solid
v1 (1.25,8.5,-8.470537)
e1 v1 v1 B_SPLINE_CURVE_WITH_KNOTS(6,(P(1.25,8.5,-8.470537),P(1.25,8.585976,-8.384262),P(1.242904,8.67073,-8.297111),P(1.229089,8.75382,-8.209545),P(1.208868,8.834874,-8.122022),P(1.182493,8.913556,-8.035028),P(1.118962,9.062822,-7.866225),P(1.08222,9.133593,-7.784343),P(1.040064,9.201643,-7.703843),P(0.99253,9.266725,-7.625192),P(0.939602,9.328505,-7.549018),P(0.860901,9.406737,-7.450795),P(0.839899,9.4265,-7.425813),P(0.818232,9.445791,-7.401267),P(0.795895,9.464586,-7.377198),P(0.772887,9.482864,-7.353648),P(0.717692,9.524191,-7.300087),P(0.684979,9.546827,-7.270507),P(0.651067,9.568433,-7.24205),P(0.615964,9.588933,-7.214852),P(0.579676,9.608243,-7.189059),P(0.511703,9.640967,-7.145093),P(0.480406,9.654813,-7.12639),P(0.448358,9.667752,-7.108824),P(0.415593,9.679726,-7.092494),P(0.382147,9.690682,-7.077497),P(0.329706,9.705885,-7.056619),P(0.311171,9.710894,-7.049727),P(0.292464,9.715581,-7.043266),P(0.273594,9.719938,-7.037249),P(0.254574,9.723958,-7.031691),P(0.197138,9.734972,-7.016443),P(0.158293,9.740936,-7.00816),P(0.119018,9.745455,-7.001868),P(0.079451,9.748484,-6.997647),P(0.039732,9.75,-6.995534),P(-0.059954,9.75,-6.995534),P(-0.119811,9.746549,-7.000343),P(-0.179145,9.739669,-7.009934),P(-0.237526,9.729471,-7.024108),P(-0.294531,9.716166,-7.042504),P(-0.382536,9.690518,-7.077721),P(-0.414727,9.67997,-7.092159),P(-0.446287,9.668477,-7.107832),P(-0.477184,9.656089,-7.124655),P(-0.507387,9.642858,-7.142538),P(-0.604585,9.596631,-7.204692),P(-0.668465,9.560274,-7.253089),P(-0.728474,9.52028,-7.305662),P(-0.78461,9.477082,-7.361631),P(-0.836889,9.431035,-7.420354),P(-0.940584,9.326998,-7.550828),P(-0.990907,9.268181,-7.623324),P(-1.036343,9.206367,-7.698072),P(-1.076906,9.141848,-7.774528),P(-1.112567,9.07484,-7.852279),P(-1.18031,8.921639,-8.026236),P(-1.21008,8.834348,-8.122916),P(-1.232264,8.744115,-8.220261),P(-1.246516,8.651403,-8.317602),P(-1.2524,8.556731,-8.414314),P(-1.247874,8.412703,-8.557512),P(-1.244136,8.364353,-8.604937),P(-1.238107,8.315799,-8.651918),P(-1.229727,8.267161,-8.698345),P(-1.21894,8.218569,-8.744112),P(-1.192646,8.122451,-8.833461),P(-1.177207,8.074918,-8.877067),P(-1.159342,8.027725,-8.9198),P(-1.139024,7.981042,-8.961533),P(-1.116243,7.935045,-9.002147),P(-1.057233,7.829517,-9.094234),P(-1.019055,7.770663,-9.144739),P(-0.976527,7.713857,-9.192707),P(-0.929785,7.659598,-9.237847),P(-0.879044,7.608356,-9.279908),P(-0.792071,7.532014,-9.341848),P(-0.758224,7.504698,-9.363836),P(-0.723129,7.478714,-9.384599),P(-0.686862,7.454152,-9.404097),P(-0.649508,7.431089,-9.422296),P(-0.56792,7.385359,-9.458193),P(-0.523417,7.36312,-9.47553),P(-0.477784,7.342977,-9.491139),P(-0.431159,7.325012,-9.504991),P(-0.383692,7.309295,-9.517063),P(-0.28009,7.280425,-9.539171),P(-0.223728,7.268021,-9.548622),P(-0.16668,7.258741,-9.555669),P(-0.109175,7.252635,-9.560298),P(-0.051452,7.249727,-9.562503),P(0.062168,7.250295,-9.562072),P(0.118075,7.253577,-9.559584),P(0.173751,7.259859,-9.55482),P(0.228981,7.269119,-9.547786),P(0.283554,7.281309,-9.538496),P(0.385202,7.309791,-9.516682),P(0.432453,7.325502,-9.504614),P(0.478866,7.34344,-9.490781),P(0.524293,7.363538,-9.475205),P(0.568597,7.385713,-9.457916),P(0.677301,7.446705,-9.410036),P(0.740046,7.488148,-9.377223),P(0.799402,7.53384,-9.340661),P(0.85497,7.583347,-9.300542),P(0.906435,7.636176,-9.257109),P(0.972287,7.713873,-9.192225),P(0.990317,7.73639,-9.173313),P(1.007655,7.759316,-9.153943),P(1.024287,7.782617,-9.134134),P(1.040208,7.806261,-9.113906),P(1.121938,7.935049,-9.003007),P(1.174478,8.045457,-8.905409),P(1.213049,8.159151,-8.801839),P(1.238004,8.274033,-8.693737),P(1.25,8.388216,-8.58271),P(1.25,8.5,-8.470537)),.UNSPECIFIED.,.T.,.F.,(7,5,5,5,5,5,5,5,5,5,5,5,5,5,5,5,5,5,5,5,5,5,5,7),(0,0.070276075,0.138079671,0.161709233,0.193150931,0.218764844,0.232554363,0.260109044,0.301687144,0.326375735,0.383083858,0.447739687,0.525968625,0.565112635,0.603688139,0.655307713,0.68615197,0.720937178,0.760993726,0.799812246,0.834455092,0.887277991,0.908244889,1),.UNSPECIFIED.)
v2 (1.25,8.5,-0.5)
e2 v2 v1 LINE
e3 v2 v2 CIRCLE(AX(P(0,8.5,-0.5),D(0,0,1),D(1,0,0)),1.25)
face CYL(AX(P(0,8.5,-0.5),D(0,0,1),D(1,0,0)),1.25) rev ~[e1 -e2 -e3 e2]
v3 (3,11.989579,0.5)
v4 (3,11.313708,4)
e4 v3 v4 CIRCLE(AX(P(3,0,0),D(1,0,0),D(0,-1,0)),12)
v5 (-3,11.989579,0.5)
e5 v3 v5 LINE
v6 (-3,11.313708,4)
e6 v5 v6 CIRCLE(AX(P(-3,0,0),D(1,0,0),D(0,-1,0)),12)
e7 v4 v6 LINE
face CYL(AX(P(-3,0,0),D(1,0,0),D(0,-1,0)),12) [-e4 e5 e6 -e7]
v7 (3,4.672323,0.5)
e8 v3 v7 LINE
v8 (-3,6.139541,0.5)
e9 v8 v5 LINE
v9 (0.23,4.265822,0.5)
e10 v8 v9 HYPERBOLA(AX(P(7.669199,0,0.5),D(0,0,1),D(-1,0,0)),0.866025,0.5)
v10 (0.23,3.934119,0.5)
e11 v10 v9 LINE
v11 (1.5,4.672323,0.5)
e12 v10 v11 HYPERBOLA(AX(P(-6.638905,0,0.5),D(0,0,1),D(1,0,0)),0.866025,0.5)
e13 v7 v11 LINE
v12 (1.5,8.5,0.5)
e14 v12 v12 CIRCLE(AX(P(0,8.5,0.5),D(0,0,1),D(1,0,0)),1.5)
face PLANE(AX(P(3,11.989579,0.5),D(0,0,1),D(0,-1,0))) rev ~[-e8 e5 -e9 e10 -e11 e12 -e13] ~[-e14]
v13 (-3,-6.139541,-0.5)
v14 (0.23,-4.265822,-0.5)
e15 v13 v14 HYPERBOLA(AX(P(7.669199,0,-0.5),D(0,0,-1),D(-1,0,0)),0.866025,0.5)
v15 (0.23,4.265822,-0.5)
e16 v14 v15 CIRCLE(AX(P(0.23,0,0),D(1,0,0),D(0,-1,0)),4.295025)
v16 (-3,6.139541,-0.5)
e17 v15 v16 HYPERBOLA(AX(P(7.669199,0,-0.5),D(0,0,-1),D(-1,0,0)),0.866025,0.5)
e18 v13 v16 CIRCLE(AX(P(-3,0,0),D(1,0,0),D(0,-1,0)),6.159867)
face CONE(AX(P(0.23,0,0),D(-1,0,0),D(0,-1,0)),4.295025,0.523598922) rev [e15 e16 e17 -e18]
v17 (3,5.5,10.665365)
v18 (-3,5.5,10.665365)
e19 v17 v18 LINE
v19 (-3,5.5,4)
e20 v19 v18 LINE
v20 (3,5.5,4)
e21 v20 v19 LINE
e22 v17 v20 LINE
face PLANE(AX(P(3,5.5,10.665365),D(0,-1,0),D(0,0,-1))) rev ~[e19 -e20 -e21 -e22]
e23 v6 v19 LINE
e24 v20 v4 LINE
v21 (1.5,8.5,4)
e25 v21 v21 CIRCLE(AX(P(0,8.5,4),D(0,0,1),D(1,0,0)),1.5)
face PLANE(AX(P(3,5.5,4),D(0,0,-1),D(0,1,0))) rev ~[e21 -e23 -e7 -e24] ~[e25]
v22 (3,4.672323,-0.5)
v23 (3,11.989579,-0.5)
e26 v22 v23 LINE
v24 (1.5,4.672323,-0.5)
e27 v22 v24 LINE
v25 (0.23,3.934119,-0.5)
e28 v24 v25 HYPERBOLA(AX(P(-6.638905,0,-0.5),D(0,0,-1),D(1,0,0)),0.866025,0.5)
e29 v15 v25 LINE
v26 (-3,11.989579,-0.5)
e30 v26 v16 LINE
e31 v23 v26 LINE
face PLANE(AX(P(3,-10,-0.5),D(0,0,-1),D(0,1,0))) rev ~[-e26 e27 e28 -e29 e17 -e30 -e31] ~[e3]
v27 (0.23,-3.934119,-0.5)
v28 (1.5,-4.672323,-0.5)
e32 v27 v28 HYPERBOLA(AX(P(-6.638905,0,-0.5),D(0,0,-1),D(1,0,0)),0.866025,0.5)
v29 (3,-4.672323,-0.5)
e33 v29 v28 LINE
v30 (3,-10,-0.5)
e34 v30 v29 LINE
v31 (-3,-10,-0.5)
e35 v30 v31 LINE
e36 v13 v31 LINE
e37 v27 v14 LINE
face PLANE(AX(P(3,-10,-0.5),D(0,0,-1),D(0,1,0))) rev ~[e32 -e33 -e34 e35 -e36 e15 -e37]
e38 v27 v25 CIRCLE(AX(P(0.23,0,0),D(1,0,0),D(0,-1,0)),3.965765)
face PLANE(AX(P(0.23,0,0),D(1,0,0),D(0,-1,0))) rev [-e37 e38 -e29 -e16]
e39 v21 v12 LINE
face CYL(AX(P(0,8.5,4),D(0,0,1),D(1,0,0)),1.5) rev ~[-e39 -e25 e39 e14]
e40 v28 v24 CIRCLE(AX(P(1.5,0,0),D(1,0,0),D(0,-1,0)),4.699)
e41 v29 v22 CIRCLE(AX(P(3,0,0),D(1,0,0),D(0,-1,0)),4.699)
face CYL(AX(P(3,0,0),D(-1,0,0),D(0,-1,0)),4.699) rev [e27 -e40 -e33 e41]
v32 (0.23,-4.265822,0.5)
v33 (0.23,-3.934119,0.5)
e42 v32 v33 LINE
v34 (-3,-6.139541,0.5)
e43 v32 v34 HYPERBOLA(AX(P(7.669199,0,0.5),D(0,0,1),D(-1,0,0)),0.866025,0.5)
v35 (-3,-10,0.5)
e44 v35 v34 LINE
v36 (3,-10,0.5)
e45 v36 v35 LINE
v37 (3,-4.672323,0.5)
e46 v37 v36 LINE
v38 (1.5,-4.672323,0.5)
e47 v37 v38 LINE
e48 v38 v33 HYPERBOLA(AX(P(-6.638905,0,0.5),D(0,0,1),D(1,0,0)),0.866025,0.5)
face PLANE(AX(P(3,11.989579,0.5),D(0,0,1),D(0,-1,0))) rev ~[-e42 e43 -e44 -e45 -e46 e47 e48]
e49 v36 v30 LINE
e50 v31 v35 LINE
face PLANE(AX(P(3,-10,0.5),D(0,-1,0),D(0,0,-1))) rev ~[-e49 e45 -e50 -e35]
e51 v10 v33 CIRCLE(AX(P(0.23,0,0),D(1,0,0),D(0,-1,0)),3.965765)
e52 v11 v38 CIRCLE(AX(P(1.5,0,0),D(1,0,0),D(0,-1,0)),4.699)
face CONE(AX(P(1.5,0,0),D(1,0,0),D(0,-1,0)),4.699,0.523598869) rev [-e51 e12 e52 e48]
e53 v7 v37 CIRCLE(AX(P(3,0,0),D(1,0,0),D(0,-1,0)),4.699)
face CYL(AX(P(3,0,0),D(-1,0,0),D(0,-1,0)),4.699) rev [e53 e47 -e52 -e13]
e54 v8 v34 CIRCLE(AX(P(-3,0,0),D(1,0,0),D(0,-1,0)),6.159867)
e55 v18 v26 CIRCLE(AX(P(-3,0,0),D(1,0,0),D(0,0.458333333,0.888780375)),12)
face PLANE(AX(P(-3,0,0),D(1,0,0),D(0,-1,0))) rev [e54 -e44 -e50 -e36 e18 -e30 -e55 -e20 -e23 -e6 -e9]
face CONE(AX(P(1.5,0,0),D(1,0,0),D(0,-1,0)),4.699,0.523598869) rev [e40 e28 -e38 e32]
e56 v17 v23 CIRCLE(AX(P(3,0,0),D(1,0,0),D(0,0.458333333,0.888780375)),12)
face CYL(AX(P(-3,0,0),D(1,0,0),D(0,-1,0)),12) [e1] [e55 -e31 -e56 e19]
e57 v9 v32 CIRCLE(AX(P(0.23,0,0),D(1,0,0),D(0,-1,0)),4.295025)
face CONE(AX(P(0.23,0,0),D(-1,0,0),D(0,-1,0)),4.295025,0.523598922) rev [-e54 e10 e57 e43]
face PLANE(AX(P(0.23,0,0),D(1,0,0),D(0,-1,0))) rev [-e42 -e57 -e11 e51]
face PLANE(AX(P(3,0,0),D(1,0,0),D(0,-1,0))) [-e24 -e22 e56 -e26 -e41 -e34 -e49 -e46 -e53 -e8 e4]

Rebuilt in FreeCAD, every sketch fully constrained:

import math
import FreeCAD as App
import Part
import Sketcher

V = App.Vector
Q = App.Units.Quantity


def add_polygon(sketch, points):
    """Adds a closed chain of lines whose ends are joined by coincident constraints."""
    first, n = sketch.GeometryCount, len(points)
    for a, b in zip(points, points[1:] + points[:1]):
        sketch.addGeometry(Part.LineSegment(App.Vector(*a, 0), App.Vector(*b, 0)), False)
    for i in range(n):
        sketch.addConstraint(Sketcher.Constraint("Coincident", first + i, 2, first + (i + 1) % n, 1))

doc = App.newDocument("Part")
body = doc.addObject("PartDesign::Body", "Body")

# Sketch on XY plane
sketch1 = body.newObject("Sketcher::SketchObject", "Sketch")
sketch1.AttachmentSupport = (doc.getObject("XY_Plane"), [""])
sketch1.MapMode = "FlatFace"
add_polygon(sketch1, [(3, -12), (3, -4.7), (1.5, -4.7), (0.23, -3.97), (0.23, -4.3), (-3, -6.16), (-3, -12)])  # lines 0-6
sketch1.addConstraint([
    Sketcher.Constraint("Vertical", 0),
    Sketcher.Constraint("Horizontal", 1),
    Sketcher.Constraint("Vertical", 3),
    Sketcher.Constraint("Vertical", 5),
    Sketcher.Constraint("Horizontal", 6),
    Sketcher.Constraint("DistanceX", 6, 1, 6, 2, 6.0),
    Sketcher.Constraint("Angle", 2, Q("149.999995 deg")),
    Sketcher.Constraint("Angle", 4, Q("-149.999992 deg")),
    Sketcher.Constraint("DistanceX", 1, 2, 1, 1, 1.5),
    Sketcher.Constraint("DistanceX", -1, 1, 0, 2, 3.0),
    Sketcher.Constraint("DistanceY", 5, 2, -1, 1, 12.0),
    Sketcher.Constraint("DistanceY", 0, 1, 0, 2, 7.301),
    Sketcher.Constraint("DistanceX", -1, 1, 2, 2, 0.23),
    Sketcher.Constraint("DistanceY", 3, 2, 3, 1, 0.32926),
])
revolution = body.newObject("PartDesign::Revolution", "Revolution")
revolution.Profile = sketch1
revolution.ReferenceAxis = (sketch1, ["H_Axis"])
revolution.Angle = 360

# Sketch on YZ plane
sketch2 = body.newObject("Sketcher::SketchObject", "Sketch001")
sketch2.AttachmentSupport = (doc.getObject("YZ_Plane"), [""])
sketch2.MapMode = "FlatFace"
sketch2.AttachmentOffset = App.Placement(V(0, 0, 3), App.Rotation())
sketch2.addGeometry([
    Part.ArcOfCircle(Part.Circle(V(0, 0, 0), V(0, 0, 1), 12), math.radians(19), math.radians(63)),  # 0
    Part.LineSegment(V(5.5, 10.7, 0), V(5.5, 4, 0)),  # 1
    Part.LineSegment(V(5.5, 4, 0), V(11.3, 4, 0)),  # 2
    Part.ArcOfCircle(Part.Circle(V(0, 0, 0), V(0, 0, 1), 12), math.radians(-2.39), math.radians(0)),  # 3
    Part.ArcOfCircle(Part.Circle(V(0, 0, 0), V(0, 0, 1), 12), math.radians(0), math.radians(2.39)),  # 4
    Part.LineSegment(V(12, 0.5, 0), V(-10, 0.5, 0)),  # 5
    Part.LineSegment(V(-10, 0.5, 0), V(-10, -0.5, 0)),  # 6
    Part.LineSegment(V(-10, -0.5, 0), V(12, -0.5, 0)),  # 7
], False)
sketch2.addConstraint([
    Sketcher.Constraint("Coincident", 0, 2, 1, 1),
    Sketcher.Constraint("Coincident", 1, 2, 2, 1),
    Sketcher.Constraint("Coincident", 2, 2, 0, 1),
    Sketcher.Constraint("Tangent", 3, 2, 4, 1),
    Sketcher.Constraint("Coincident", 4, 2, 5, 1),
    Sketcher.Constraint("Coincident", 5, 2, 6, 1),
    Sketcher.Constraint("Coincident", 6, 2, 7, 1),
    Sketcher.Constraint("Coincident", 7, 2, 3, 1),
    Sketcher.Constraint("Vertical", 1),
    Sketcher.Constraint("Horizontal", 2),
    Sketcher.Constraint("Horizontal", 5),
    Sketcher.Constraint("Vertical", 6),
    Sketcher.Constraint("Horizontal", 7),
    Sketcher.Constraint("Coincident", 0, 3, -1, 1),
    Sketcher.Constraint("Coincident", 3, 3, -1, 1),
    Sketcher.Constraint("Equal", 0, 3),
    Sketcher.Constraint("Equal", 3, 4),
    Sketcher.Constraint("PointOnObject", 3, 2, -1),
    Sketcher.Constraint("Vertical", 4, 2, 7, 2),
    Sketcher.Constraint("Radius", 0, 12.0),
    Sketcher.Constraint("DistanceY", 6, 2, 6, 1, 1.0),
    Sketcher.Constraint("DistanceY", -1, 1, 1, 2, 4.0),
    Sketcher.Constraint("DistanceX", 5, 2, -1, 1, 10.0),
    Sketcher.Constraint("DistanceX", -1, 1, 0, 2, 5.5),
])
pocket1 = body.newObject("PartDesign::Pocket", "Pocket")
pocket1.Profile = sketch2
pocket1.Type = "ThroughAll"

# Sketch on XY plane
sketch3 = body.newObject("Sketcher::SketchObject", "Sketch002")
sketch3.AttachmentSupport = (doc.getObject("XY_Plane"), [""])
sketch3.MapMode = "FlatFace"
sketch3.AttachmentOffset = App.Placement(V(0, 0, 4), App.Rotation())
sketch3.addGeometry(Part.Circle(V(0, 8.5, 0), V(0, 0, 1), 1.5), False)
sketch3.addConstraint([
    Sketcher.Constraint("PointOnObject", 0, 3, -2),
    Sketcher.Constraint("Diameter", 0, 3.0),
    Sketcher.Constraint("DistanceY", -1, 1, 0, 3, 8.5),
])
pocket2 = body.newObject("PartDesign::Pocket", "Pocket001")
pocket2.Profile = sketch3
pocket2.Length = 3.5

# Sketch on XY plane
sketch4 = body.newObject("Sketcher::SketchObject", "Sketch003")
sketch4.AttachmentSupport = (doc.getObject("XY_Plane"), [""])
sketch4.MapMode = "FlatFace"
sketch4.AttachmentOffset = App.Placement(V(0, 0, -0.5), App.Rotation())
sketch4.addGeometry(Part.Circle(V(0, 8.5, 0), V(0, 0, 1), 1.2), False)
sketch4.addConstraint([
    Sketcher.Constraint("PointOnObject", 0, 3, -2),
    Sketcher.Constraint("Diameter", 0, 2.5),
    Sketcher.Constraint("DistanceY", -1, 1, 0, 3, 8.5),
])
pocket3 = body.newObject("PartDesign::Pocket", "Pocket002")
pocket3.Profile = sketch4
pocket3.Type = "ThroughAll"

doc.recompute()
